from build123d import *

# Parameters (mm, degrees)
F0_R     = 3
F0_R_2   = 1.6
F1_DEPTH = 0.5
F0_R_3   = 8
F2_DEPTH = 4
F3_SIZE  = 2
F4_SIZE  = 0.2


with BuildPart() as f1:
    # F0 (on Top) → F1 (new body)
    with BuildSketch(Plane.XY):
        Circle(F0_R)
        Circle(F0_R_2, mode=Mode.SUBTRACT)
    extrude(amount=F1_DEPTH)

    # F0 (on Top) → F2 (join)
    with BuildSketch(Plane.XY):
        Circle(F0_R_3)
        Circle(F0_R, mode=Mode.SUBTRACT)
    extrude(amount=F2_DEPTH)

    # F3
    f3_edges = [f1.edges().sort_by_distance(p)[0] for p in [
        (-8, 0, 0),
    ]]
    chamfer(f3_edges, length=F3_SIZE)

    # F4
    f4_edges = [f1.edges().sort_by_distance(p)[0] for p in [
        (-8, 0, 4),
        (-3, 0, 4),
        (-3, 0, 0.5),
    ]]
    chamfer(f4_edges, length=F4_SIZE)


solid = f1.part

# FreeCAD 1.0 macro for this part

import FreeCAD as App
import Part
import Sketcher
from FreeCAD import Vector
Q = App.Units.Quantity


def edges_at(feature, points):
    """Names of the edges that pass closest to the given points."""
    edges = feature.Shape.Edges
    near = lambda p: min(range(len(edges)), key=lambda i: edges[i].distToShape(Part.Vertex(*p))[0])
    return sorted({f"Edge{near(p) + 1}" for p in points})

doc = App.newDocument("Part")
body = doc.addObject("PartDesign::Body", "Body")

# Sketch on XY plane
sketch1 = doc.addObject("Sketcher::SketchObject", "Sketch")
body.addObject(sketch1)
sketch1.AttachmentSupport = (doc.XY_Plane, [""])
sketch1.MapMode = "FlatFace"
sketch1.addGeometry([
    Part.Circle(Vector(0, 0, 0), Vector(0, 0, 1), 3),
    Part.Circle(Vector(0, 0, 0), Vector(0, 0, 1), 1.6),
], False)
sketch1.addConstraint([
    Sketcher.Constraint("Coincident", 0, 3, -1, 1),
    Sketcher.Constraint("Coincident", 1, 3, -1, 1),
    Sketcher.Constraint("Diameter", 0, Q("6 mm")),
    Sketcher.Constraint("Diameter", 1, Q("3.2 mm")),
])
pad1 = doc.addObject("PartDesign::Pad", "Pad")
body.addObject(pad1)
pad1.Profile = sketch1
pad1.Length = 0.5

# Sketch on XY plane
sketch2 = doc.addObject("Sketcher::SketchObject", "Sketch001")
body.addObject(sketch2)
sketch2.AttachmentSupport = (doc.XY_Plane, [""])
sketch2.MapMode = "FlatFace"
sketch2.addGeometry([
    Part.Circle(Vector(0, 0, 0), Vector(0, 0, 1), 8),
    Part.Circle(Vector(0, 0, 0), Vector(0, 0, 1), 3),
], False)
sketch2.addConstraint([
    Sketcher.Constraint("Coincident", 0, 3, -1, 1),
    Sketcher.Constraint("Coincident", 1, 3, -1, 1),
    Sketcher.Constraint("Diameter", 0, Q("16 mm")),
    Sketcher.Constraint("Diameter", 1, Q("6 mm")),
])
pad2 = doc.addObject("PartDesign::Pad", "Pad001")
body.addObject(pad2)
pad2.Profile = sketch2
pad2.Length = 4
doc.recompute()

chamfer = doc.addObject("PartDesign::Chamfer", "Chamfer")
body.addObject(chamfer)
chamfer.Base = (pad2, edges_at(pad2, [(-8, 0, 0)]))
chamfer.Size = 2
doc.recompute()

chamfer2 = doc.addObject("PartDesign::Chamfer", "Chamfer001")
body.addObject(chamfer2)
chamfer2.Base = (chamfer, edges_at(chamfer, [(-8, 0, 4), (-3, 0, 4), (-3, 0, 0.5)]))
chamfer2.Size = 0.2

doc.recompute()
